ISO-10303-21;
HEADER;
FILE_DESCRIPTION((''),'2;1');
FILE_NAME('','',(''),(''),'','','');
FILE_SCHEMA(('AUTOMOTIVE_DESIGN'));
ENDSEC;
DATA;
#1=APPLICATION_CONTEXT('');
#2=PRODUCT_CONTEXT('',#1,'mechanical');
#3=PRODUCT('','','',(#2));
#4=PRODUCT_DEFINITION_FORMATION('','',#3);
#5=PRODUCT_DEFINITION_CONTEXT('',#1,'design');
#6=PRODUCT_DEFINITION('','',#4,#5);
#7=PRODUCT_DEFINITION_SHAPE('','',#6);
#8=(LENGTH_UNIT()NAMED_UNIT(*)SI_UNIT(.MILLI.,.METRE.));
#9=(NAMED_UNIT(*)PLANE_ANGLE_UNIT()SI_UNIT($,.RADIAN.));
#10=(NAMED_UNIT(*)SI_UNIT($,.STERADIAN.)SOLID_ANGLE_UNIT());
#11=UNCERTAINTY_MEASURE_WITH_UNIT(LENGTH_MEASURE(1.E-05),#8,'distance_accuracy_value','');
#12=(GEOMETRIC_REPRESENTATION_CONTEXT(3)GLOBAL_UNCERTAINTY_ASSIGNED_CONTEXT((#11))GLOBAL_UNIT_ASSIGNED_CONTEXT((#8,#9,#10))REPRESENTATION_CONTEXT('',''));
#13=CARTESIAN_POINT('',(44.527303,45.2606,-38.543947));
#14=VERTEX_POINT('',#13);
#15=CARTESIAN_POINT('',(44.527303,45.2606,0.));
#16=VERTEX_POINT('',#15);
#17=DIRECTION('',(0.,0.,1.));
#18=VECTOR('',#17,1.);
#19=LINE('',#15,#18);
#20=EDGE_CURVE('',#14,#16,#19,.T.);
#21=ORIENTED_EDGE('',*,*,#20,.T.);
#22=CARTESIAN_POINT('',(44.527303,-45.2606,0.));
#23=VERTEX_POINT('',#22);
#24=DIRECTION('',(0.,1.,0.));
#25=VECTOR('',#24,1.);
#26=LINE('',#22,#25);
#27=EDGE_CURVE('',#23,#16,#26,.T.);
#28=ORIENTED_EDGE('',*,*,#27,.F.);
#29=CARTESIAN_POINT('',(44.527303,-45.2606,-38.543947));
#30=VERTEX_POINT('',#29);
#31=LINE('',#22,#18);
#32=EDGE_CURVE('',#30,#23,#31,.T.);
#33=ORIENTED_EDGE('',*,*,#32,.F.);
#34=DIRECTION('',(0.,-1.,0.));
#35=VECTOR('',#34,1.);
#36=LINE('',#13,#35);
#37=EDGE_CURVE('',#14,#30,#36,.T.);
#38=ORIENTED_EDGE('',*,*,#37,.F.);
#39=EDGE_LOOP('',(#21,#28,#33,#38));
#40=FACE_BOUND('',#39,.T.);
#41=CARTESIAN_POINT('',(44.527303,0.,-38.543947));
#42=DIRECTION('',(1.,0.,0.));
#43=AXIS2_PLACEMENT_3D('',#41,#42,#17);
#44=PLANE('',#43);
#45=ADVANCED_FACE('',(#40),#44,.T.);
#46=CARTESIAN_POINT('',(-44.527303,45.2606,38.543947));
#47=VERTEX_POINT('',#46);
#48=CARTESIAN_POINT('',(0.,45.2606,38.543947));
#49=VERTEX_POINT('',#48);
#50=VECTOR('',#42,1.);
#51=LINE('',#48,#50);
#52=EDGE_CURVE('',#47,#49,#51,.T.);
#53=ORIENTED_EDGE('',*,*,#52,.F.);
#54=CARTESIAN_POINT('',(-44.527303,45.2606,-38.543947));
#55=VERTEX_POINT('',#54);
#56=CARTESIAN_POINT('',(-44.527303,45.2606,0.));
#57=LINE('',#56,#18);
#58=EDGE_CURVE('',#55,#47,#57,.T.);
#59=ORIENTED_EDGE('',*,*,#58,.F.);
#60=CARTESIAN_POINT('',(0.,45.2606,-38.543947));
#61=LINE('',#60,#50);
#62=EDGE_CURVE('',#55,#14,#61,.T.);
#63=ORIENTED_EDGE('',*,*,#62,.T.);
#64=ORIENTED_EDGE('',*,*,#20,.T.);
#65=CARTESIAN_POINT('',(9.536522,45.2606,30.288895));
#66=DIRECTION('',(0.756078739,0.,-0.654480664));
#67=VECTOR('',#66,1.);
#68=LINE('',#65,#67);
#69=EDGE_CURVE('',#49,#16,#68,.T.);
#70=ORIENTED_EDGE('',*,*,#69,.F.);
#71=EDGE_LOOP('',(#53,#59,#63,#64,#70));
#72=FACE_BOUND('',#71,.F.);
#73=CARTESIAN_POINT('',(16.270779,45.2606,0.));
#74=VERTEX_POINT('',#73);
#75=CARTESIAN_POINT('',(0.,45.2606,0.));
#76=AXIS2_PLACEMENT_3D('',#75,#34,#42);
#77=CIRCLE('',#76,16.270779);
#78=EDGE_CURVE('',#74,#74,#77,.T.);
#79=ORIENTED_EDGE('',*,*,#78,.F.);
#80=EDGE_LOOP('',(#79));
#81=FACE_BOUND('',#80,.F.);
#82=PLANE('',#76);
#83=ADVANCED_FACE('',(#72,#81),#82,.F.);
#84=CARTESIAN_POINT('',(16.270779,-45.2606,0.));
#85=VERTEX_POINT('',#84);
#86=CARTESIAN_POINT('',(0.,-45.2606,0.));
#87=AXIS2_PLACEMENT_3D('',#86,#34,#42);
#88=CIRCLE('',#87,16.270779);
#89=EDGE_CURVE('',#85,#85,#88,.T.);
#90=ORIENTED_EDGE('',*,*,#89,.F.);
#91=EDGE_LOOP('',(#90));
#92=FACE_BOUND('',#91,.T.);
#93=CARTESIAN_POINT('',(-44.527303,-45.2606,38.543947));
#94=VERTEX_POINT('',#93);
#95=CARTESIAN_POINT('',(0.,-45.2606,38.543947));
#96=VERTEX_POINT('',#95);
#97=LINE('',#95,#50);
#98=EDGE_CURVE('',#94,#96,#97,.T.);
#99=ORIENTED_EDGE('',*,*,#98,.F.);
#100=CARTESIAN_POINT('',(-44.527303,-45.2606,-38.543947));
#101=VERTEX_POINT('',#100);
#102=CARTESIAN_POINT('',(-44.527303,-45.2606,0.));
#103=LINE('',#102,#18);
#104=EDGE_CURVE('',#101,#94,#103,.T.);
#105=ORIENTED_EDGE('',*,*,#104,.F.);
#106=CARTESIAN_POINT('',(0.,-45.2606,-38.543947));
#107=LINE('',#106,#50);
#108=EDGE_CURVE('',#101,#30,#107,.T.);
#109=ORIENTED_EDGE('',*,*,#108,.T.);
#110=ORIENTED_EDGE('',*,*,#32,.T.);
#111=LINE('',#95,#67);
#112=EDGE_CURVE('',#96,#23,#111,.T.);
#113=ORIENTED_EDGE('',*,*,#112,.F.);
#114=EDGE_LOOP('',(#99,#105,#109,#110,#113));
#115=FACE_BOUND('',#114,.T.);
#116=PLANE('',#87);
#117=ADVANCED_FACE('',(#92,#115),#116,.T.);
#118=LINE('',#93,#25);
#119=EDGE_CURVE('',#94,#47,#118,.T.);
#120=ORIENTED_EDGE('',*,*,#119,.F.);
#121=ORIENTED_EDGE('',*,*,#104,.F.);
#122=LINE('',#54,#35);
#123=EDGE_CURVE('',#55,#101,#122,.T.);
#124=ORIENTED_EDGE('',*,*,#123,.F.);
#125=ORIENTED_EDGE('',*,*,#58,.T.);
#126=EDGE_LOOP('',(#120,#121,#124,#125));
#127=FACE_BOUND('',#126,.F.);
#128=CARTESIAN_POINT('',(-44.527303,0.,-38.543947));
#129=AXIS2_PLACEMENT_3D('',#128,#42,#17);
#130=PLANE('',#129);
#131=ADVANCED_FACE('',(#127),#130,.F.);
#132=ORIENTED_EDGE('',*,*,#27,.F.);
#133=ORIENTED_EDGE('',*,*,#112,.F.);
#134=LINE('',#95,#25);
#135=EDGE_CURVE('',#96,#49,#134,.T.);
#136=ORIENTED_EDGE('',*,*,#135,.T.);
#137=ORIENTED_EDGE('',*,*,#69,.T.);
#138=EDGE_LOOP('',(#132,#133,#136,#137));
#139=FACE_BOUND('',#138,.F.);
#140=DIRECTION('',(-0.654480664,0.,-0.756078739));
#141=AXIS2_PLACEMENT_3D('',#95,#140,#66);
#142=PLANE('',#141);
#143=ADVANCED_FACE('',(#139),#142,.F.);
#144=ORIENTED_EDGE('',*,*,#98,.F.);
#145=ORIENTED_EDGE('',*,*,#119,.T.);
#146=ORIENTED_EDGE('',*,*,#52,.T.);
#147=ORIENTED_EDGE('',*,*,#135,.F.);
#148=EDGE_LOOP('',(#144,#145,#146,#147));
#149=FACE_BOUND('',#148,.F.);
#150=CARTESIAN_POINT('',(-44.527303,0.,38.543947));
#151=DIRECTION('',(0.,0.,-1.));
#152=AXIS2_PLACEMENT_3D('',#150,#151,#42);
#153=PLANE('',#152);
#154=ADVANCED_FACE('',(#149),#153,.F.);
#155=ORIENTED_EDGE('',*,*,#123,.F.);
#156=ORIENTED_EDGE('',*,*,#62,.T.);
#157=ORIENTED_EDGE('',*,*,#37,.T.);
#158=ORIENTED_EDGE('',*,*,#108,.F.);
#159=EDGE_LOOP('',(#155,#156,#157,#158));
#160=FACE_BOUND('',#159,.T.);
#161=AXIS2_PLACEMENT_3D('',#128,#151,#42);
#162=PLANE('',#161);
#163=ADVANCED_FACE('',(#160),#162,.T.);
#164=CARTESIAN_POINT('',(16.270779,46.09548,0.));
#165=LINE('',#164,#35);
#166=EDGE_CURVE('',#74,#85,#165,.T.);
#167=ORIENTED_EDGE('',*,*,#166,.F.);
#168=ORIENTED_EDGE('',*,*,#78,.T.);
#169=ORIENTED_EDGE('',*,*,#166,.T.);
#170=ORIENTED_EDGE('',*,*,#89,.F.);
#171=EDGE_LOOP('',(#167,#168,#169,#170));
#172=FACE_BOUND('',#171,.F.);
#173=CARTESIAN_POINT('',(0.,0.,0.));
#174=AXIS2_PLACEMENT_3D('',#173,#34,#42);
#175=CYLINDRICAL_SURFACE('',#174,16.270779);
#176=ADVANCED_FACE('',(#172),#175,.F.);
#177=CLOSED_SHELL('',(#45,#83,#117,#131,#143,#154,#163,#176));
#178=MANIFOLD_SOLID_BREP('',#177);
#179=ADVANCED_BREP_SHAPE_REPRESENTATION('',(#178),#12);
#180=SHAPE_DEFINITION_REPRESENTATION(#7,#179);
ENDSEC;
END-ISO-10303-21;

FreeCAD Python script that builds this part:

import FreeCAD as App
import Part
import Sketcher


def add_polygon(sketch, points):
    """Adds a closed chain of lines whose ends are joined by coincident constraints."""
    first, n = sketch.GeometryCount, len(points)
    for a, b in zip(points, points[1:] + points[:1]):
        sketch.addGeometry(Part.LineSegment(App.Vector(*a, 0), App.Vector(*b, 0)), False)
    for i in range(n):
        sketch.addConstraint(Sketcher.Constraint("Coincident", first + i, 2, first + (i + 1) % n, 1))

doc = App.newDocument("Part")
body = doc.addObject("PartDesign::Body", "Body")

# Sketch on XZ plane
sketch1 = body.newObject("Sketcher::SketchObject", "Sketch")
sketch1.AttachmentSupport = (doc.getObject("XZ_Plane"), [""])
sketch1.MapMode = "FlatFace"
add_polygon(sketch1, [(-45, 39), (-45, -39), (45, -39), (45, 39)])  # lines 0-3
sketch1.addConstraint(Sketcher.Constraint("Vertical", 0))
sketch1.addConstraint(Sketcher.Constraint("Horizontal", 1))
sketch1.addConstraint(Sketcher.Constraint("Vertical", 2))
sketch1.addConstraint(Sketcher.Constraint("Horizontal", 3))
sketch1.addConstraint(Sketcher.Constraint("Symmetric", 0, 2, 2, 2, -1, 1))
sketch1.addConstraint(Sketcher.Constraint("DistanceX", 1, 1, 1, 2, 89.054606))
sketch1.addConstraint(Sketcher.Constraint("DistanceY", 0, 2, 0, 1, 77.087894))
pad1 = body.newObject("PartDesign::Pad", "Pad")
pad1.Profile = sketch1
pad1.Length = 90.5212
pad1.Midplane = True

# Sketch on XZ plane
sketch2 = body.newObject("Sketcher::SketchObject", "Sketch001")
sketch2.AttachmentSupport = (doc.getObject("XZ_Plane"), [""])
sketch2.MapMode = "FlatFace"
sketch2.AttachmentOffset = App.Placement(App.Vector(0, 0, 45.2606), App.Rotation())
add_polygon(sketch2, [(45, 39), (0, 39), (45, 0)])  # lines 0-2
sketch2.addConstraint(Sketcher.Constraint("Horizontal", 0))
sketch2.addConstraint(Sketcher.Constraint("Vertical", 2))
sketch2.addConstraint(Sketcher.Constraint("PointOnObject", 0, 2, -2))
sketch2.addConstraint(Sketcher.Constraint("PointOnObject", 1, 2, -1))
sketch2.addConstraint(Sketcher.Constraint("DistanceX", 0, 2, 0, 1, 44.527303))
sketch2.addConstraint(Sketcher.Constraint("DistanceY", 2, 1, 2, 2, 38.543947))
pocket1 = body.newObject("PartDesign::Pocket", "Pocket")
pocket1.Profile = sketch2
pocket1.Type = "ThroughAll"

# Sketch on XZ plane
sketch3 = body.newObject("Sketcher::SketchObject", "Sketch002")
sketch3.AttachmentSupport = (doc.getObject("XZ_Plane"), [""])
sketch3.MapMode = "FlatFace"
sketch3.addGeometry(Part.Circle(App.Vector(0, 0, 0), App.Vector(0, 0, 1), 16), False)
sketch3.addConstraint(Sketcher.Constraint("Coincident", 0, 3, -1, 1))
sketch3.addConstraint(Sketcher.Constraint("Diameter", 0, 32.541558))
pocket2 = body.newObject("PartDesign::Pocket", "Pocket001")
pocket2.Profile = sketch3
pocket2.Length = 92.19096
pocket2.Midplane = True

doc.recompute()
